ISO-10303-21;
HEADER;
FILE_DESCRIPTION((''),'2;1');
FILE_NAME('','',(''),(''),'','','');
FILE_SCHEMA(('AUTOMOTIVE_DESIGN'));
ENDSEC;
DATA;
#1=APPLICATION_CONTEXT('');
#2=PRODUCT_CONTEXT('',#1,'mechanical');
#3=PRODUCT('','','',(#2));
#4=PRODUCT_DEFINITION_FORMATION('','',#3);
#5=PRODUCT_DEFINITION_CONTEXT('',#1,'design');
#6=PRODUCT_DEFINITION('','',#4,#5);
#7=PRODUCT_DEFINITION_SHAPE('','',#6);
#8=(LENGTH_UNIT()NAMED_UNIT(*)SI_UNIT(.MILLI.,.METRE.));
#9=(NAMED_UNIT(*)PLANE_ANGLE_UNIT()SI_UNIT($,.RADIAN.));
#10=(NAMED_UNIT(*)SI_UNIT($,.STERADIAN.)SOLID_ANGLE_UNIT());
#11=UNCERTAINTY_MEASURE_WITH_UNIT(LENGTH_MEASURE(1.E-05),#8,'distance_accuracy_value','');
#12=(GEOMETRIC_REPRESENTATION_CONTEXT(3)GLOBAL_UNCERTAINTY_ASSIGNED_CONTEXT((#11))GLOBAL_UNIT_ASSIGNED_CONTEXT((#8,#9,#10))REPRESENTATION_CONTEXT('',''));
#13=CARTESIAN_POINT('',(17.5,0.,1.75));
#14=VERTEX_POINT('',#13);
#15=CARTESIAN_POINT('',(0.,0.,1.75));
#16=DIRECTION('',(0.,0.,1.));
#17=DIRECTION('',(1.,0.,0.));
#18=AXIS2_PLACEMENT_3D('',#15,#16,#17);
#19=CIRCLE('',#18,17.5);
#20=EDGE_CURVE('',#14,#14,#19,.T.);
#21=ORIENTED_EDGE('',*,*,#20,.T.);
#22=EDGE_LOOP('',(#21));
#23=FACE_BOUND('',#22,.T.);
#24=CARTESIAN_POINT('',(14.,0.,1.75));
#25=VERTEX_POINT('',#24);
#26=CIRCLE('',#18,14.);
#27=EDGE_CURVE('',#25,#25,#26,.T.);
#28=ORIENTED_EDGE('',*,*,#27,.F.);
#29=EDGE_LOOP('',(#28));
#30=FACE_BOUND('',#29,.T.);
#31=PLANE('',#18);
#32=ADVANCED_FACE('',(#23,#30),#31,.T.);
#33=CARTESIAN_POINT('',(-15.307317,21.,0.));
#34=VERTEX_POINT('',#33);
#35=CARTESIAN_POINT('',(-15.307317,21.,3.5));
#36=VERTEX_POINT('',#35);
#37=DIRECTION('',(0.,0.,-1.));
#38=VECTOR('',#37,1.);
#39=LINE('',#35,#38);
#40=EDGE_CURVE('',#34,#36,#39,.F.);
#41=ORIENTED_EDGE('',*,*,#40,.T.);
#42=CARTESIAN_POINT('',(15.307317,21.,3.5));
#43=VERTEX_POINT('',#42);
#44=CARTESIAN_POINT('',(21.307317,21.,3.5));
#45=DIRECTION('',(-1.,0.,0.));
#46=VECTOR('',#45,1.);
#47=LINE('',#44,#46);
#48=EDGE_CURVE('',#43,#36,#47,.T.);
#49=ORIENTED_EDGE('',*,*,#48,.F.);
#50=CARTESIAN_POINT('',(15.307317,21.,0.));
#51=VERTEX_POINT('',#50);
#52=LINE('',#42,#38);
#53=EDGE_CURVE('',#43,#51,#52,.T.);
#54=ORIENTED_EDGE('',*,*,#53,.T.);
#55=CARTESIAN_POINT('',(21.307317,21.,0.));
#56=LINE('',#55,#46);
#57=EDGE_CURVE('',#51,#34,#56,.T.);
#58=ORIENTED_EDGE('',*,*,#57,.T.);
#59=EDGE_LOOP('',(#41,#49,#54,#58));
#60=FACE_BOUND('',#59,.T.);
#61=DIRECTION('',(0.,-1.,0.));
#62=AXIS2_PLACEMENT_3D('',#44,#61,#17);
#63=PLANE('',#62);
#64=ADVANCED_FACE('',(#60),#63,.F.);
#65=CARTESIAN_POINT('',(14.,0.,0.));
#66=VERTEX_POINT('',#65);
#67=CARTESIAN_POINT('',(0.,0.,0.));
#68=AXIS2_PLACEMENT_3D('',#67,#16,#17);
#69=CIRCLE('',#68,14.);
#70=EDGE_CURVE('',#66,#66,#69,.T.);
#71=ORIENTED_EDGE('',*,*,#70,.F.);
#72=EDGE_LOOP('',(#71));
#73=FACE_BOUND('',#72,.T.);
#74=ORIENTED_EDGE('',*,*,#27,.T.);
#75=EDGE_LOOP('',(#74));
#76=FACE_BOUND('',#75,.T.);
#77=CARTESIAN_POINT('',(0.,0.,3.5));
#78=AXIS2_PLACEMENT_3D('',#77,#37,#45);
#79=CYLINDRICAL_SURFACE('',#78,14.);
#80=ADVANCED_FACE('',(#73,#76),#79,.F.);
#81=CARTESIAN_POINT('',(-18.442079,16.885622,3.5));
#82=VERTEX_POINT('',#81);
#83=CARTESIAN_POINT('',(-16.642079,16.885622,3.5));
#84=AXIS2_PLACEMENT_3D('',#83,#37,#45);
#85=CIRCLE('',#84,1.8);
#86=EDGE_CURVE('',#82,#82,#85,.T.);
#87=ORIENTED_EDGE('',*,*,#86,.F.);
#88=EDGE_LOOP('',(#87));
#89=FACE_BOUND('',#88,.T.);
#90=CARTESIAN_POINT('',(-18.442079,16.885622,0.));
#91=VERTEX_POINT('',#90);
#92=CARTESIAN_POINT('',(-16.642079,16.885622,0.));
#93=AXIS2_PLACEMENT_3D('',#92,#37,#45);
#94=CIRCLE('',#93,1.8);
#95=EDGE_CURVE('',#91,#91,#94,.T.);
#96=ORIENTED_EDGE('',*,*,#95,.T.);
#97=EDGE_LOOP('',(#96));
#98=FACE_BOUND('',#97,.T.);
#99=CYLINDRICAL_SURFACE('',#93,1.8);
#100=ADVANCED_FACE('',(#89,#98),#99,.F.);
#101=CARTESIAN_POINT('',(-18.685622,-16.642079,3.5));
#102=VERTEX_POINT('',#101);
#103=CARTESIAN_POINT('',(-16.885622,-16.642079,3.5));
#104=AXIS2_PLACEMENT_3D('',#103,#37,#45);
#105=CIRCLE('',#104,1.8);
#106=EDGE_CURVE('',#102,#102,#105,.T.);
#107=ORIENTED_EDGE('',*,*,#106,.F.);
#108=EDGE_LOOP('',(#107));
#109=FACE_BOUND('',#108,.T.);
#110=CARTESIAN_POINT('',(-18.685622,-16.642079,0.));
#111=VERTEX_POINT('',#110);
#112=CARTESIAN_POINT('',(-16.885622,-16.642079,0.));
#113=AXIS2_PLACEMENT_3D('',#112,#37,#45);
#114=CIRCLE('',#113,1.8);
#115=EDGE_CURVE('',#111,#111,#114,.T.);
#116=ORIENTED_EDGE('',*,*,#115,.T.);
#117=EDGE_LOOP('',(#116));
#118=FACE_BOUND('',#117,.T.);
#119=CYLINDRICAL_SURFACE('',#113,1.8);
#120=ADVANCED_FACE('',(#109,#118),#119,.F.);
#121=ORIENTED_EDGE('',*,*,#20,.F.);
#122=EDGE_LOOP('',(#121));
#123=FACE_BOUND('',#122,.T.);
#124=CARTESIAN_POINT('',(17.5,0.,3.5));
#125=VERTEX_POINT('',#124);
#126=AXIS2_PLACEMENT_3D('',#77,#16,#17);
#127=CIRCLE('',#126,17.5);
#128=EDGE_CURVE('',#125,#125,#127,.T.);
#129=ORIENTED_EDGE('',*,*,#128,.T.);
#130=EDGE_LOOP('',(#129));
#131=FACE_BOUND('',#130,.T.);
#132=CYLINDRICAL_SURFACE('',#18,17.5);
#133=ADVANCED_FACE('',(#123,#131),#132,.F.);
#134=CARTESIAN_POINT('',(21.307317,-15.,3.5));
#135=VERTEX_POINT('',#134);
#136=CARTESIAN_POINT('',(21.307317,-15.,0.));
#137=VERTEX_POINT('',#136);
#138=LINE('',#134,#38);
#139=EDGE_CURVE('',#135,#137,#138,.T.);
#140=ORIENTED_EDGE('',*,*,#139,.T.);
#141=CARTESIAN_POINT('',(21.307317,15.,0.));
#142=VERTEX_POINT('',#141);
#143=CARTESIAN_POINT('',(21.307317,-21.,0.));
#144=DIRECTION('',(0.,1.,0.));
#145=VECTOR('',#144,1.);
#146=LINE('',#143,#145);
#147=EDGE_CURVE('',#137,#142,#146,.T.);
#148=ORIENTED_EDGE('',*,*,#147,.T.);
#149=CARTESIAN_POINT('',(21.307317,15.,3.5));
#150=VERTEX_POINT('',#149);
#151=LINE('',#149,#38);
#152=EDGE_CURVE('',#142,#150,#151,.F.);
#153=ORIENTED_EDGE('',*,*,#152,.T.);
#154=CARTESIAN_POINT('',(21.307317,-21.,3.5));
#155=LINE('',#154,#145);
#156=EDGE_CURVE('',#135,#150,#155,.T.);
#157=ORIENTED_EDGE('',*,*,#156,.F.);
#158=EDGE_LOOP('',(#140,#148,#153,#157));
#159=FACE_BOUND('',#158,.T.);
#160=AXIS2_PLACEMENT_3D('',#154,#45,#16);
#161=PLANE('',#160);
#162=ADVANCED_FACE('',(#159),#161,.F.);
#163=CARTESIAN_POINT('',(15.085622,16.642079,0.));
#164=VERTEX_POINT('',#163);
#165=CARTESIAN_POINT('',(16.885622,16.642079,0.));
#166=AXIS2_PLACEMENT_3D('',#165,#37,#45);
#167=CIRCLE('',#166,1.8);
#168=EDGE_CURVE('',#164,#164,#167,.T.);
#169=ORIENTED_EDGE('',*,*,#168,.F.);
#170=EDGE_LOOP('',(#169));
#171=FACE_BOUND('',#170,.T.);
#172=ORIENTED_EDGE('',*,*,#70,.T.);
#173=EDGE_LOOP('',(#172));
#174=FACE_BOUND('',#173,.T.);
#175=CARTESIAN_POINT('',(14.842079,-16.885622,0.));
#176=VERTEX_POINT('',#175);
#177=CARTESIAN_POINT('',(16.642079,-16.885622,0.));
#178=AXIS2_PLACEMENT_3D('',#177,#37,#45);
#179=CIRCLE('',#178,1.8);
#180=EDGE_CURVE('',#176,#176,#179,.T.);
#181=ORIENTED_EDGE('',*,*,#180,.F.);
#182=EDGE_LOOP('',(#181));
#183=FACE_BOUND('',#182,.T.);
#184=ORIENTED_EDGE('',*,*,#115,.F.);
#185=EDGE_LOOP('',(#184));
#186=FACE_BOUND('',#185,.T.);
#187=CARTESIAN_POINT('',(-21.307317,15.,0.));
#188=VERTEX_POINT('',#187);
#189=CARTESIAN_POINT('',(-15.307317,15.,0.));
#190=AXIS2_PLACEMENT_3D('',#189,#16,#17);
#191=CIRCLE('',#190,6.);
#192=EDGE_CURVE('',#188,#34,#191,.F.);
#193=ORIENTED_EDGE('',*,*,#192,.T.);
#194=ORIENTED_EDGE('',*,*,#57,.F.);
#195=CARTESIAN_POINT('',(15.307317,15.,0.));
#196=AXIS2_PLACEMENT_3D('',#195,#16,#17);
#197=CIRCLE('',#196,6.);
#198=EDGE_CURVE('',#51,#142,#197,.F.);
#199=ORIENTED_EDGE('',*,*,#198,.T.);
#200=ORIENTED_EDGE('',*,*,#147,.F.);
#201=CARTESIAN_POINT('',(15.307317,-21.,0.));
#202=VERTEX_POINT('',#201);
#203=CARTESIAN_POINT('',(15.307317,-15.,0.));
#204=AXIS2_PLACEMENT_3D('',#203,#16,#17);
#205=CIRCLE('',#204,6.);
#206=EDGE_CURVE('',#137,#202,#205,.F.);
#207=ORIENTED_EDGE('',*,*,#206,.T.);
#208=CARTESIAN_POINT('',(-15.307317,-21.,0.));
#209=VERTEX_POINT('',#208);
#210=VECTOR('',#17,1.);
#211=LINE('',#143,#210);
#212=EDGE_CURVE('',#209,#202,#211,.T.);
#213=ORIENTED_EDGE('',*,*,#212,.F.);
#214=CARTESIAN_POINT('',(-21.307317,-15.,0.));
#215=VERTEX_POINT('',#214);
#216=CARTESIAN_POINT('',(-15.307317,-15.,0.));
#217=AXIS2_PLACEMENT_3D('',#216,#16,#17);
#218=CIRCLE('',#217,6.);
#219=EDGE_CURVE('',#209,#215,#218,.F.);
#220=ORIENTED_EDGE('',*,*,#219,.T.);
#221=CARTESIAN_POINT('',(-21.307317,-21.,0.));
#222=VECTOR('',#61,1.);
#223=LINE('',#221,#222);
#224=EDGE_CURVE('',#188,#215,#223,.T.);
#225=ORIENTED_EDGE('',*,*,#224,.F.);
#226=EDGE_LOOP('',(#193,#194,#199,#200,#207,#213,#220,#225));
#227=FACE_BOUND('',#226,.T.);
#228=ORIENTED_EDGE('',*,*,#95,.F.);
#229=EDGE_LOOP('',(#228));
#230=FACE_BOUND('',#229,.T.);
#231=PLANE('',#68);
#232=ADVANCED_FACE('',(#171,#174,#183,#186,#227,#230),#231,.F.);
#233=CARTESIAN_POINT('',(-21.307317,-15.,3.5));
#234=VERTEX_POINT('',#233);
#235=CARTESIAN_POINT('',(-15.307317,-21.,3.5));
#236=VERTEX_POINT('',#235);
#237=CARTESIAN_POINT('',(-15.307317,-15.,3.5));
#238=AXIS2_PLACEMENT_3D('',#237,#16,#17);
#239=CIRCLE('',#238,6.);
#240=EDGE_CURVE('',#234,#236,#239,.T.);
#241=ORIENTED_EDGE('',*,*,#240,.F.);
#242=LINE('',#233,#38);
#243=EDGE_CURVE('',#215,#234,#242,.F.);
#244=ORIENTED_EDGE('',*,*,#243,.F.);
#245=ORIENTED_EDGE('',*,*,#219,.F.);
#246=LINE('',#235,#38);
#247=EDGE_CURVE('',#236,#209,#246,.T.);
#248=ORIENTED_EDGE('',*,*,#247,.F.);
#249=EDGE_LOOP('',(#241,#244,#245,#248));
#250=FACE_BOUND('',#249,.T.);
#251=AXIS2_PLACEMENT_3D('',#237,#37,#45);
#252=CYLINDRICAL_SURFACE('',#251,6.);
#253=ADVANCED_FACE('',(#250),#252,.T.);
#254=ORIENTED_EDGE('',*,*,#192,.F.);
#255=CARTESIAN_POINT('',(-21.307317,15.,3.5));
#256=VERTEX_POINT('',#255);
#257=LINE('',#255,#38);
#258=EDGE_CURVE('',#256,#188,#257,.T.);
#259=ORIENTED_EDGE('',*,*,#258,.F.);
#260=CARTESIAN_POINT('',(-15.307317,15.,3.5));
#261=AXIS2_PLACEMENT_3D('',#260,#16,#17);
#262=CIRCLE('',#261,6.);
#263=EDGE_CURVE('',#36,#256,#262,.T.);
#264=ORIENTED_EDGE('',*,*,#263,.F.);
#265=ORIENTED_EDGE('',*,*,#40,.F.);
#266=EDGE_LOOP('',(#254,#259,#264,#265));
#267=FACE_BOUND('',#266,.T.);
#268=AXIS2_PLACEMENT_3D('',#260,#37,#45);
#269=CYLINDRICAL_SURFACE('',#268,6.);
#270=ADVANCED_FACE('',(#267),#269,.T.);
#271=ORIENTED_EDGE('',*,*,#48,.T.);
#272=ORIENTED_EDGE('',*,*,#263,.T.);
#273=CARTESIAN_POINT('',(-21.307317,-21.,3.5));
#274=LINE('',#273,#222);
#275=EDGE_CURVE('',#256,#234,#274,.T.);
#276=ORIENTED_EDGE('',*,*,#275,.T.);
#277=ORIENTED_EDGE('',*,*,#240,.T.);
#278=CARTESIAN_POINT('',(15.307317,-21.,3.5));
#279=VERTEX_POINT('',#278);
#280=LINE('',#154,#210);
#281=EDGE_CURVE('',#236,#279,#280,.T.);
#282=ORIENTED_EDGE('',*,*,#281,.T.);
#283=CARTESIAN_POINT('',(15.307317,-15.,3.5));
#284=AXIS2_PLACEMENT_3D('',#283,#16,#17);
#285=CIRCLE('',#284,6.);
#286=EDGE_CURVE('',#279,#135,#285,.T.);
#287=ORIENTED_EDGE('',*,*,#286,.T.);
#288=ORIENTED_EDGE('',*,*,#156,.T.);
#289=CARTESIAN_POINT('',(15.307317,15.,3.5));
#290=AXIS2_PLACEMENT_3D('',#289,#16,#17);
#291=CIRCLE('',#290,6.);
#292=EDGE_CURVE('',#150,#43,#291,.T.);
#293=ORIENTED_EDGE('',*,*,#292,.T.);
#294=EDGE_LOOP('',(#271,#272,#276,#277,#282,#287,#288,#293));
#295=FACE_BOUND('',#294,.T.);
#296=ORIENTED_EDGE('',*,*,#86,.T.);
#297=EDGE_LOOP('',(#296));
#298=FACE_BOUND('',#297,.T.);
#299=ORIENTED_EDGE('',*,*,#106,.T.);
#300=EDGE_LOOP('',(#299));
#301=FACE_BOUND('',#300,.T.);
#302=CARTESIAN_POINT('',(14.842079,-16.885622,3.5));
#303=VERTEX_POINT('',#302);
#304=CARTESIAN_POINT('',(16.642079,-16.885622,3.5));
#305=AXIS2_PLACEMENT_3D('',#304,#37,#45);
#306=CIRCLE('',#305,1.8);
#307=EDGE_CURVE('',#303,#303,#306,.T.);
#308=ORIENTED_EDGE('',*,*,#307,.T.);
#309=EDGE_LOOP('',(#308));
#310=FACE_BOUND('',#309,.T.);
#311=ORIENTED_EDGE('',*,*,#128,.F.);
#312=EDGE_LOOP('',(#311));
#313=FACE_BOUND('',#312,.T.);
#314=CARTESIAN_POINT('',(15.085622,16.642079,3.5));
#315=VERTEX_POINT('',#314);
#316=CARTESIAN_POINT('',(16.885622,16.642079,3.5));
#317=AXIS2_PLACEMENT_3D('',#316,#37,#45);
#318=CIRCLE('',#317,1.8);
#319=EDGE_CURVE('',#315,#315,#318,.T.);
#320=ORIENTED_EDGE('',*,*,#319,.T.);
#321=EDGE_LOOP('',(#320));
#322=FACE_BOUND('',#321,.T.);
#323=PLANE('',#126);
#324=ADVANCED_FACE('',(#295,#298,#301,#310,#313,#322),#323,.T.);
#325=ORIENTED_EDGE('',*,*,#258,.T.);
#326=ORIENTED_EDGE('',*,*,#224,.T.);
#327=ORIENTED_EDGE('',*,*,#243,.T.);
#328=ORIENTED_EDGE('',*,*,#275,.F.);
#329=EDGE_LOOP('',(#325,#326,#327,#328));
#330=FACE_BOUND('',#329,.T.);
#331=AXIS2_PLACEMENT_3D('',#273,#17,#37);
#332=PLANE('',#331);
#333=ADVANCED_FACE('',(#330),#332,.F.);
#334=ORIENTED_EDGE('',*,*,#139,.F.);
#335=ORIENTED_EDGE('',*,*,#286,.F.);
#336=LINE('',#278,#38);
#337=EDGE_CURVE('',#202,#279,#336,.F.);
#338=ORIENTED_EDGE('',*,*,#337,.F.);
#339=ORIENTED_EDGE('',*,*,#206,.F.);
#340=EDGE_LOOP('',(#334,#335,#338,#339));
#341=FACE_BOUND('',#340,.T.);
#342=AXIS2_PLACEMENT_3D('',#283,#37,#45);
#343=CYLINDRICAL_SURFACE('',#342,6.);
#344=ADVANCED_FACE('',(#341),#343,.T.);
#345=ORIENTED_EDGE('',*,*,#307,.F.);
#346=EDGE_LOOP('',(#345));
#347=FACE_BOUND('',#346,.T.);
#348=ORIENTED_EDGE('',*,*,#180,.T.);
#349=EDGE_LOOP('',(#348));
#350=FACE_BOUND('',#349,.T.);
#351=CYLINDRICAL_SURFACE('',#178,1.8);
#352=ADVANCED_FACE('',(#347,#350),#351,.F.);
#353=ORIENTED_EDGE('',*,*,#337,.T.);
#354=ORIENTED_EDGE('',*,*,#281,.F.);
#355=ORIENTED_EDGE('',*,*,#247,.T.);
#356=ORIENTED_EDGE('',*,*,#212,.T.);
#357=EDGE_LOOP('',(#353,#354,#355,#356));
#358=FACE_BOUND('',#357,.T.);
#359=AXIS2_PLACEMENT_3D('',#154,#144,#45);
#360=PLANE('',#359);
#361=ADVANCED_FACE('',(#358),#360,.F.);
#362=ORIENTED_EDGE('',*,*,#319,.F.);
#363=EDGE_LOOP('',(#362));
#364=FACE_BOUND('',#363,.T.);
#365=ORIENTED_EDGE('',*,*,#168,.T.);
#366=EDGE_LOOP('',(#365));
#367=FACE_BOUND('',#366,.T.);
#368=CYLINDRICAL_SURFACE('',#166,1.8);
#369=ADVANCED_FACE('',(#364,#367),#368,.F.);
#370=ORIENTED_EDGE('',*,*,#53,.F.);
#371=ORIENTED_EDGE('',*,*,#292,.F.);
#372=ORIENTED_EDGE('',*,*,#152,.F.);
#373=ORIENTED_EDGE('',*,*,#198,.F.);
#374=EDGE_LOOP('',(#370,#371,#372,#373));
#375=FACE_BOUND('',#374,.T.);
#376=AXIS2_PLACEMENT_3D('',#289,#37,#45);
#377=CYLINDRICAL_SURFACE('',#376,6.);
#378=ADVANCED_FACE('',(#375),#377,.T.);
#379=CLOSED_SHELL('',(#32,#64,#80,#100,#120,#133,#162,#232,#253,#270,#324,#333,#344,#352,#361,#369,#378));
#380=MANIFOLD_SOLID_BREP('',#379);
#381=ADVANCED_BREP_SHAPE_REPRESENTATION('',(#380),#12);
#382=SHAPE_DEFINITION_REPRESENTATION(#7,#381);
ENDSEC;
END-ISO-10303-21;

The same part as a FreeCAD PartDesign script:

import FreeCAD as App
import Part
import Sketcher

V = App.Vector
Q = App.Units.Quantity


def edges_at(feature, points):
    """Names of the edges that pass closest to the given points."""
    edges = feature.Shape.Edges
    near = lambda p: min(range(len(edges)), key=lambda i: edges[i].distToShape(Part.Vertex(*p))[0])
    return sorted({f"Edge{near(p) + 1}" for p in points})


def add_polygon(sketch, points):
    """Adds a closed chain of lines whose ends are joined by coincident constraints."""
    first, n = sketch.GeometryCount, len(points)
    for a, b in zip(points, points[1:] + points[:1]):
        sketch.addGeometry(Part.LineSegment(App.Vector(*a, 0), App.Vector(*b, 0)), False)
    for i in range(n):
        sketch.addConstraint(Sketcher.Constraint("Coincident", first + i, 2, first + (i + 1) % n, 1))

doc = App.newDocument("Part")
body = doc.addObject("PartDesign::Body", "Body")

sketch1 = body.newObject("Sketcher::SketchObject", "Sketch")
sketch1.AttachmentSupport = (doc.getObject("XY_Plane"), [""])
sketch1.MapMode = "FlatFace"
add_polygon(sketch1, [(-21, 21), (-21, -21), (21, -21), (21, 21)])
sketch1.addGeometry(Part.Circle(V(0, 0, 0), V(0, 0, 1), 14), False)
sketch1.addConstraint(Sketcher.Constraint("Vertical", 0))
sketch1.addConstraint(Sketcher.Constraint("Horizontal", 1))
sketch1.addConstraint(Sketcher.Constraint("Vertical", 2))
sketch1.addConstraint(Sketcher.Constraint("Horizontal", 3))
sketch1.addConstraint(Sketcher.Constraint("Coincident", 4, 3, -1, 1))
sketch1.addConstraint(Sketcher.Constraint("Symmetric", 0, 2, 2, 2, -1, 1))
sketch1.addConstraint(Sketcher.Constraint("Diameter", 4, Q("28 mm")))
sketch1.addConstraint(Sketcher.Constraint("DistanceY", 0, 2, 0, 1, Q("42 mm")))
sketch1.addConstraint(Sketcher.Constraint("DistanceX", 1, 1, 1, 2, Q("42.614634 mm")))
pad1 = body.newObject("PartDesign::Pad", "Pad")
pad1.Profile = sketch1
pad1.Length = 3.5

sketch2 = body.newObject("Sketcher::SketchObject", "Sketch001")
sketch2.AttachmentSupport = (doc.getObject("XY_Plane"), [""])
sketch2.MapMode = "FlatFace"
sketch2.AttachmentOffset = App.Placement(V(0, 0, 3.5), App.Rotation())
sketch2.addGeometry(Part.Circle(V(0, 0, 0), V(0, 0, 1), 18), False)
sketch2.addConstraint(Sketcher.Constraint("Coincident", 0, 3, -1, 1))
sketch2.addConstraint(Sketcher.Constraint("Diameter", 0, Q("35 mm")))
pocket1 = body.newObject("PartDesign::Pocket", "Pocket")
pocket1.Profile = sketch2
pocket1.Length = 1.75

sketch3 = body.newObject("Sketcher::SketchObject", "Sketch002")
sketch3.AttachmentSupport = (doc.getObject("XY_Plane"), [""])
sketch3.MapMode = "FlatFace"
sketch3.addGeometry(Part.Circle(V(16.6, -16.9, 0), V(0, 0, 1), 1.8), False)
sketch3.addGeometry(Part.Circle(V(16.9, 16.6, 0), V(0, 0, 1), 1.8), False)
sketch3.addGeometry(Part.Circle(V(-16.6, 16.9, 0), V(0, 0, 1), 1.8), False)
sketch3.addGeometry(Part.Circle(V(-16.9, -16.6, 0), V(0, 0, 1), 1.8), False)
sketch3.addConstraint(Sketcher.Constraint("Equal", 0, 1))
sketch3.addConstraint(Sketcher.Constraint("Equal", 1, 2))
sketch3.addConstraint(Sketcher.Constraint("Equal", 2, 3))
sketch3.addConstraint(Sketcher.Constraint("Symmetric", 0, 3, 2, 3, -1, 1))
sketch3.addConstraint(Sketcher.Constraint("Symmetric", 1, 3, 3, 3, -1, 1))
sketch3.addConstraint(Sketcher.Constraint("Diameter", 0, Q("3.6 mm")))
sketch3.addConstraint(Sketcher.Constraint("DistanceY", 0, 3, 1, 3, Q("33.527701 mm")))
sketch3.addConstraint(Sketcher.Constraint("DistanceX", 2, 3, 1, 3, Q("33.527701 mm")))
sketch3.addConstraint(Sketcher.Constraint("DistanceX", -1, 1, 0, 3, Q("16.642079 mm")))
sketch3.addConstraint(Sketcher.Constraint("DistanceY", 0, 3, -1, 1, Q("16.885622 mm")))
doc.recompute()
hole = body.newObject("PartDesign::Hole", "Hole")
hole.Profile = sketch3
hole.ThreadType = "None"
hole.Diameter = 3.6
hole.DepthType = "ThroughAll"
hole.Reversed = True
doc.recompute()

fillet = body.newObject("PartDesign::Fillet", "Fillet")
fillet.Base = (hole, edges_at(hole, [
    (-21.307, 21, 1.75),
    (21.307, 21, 1.75),
    (21.307, -21, 1.75),
    (-21.307, -21, 1.75),
]))
fillet.Radius = 6

doc.recompute()
